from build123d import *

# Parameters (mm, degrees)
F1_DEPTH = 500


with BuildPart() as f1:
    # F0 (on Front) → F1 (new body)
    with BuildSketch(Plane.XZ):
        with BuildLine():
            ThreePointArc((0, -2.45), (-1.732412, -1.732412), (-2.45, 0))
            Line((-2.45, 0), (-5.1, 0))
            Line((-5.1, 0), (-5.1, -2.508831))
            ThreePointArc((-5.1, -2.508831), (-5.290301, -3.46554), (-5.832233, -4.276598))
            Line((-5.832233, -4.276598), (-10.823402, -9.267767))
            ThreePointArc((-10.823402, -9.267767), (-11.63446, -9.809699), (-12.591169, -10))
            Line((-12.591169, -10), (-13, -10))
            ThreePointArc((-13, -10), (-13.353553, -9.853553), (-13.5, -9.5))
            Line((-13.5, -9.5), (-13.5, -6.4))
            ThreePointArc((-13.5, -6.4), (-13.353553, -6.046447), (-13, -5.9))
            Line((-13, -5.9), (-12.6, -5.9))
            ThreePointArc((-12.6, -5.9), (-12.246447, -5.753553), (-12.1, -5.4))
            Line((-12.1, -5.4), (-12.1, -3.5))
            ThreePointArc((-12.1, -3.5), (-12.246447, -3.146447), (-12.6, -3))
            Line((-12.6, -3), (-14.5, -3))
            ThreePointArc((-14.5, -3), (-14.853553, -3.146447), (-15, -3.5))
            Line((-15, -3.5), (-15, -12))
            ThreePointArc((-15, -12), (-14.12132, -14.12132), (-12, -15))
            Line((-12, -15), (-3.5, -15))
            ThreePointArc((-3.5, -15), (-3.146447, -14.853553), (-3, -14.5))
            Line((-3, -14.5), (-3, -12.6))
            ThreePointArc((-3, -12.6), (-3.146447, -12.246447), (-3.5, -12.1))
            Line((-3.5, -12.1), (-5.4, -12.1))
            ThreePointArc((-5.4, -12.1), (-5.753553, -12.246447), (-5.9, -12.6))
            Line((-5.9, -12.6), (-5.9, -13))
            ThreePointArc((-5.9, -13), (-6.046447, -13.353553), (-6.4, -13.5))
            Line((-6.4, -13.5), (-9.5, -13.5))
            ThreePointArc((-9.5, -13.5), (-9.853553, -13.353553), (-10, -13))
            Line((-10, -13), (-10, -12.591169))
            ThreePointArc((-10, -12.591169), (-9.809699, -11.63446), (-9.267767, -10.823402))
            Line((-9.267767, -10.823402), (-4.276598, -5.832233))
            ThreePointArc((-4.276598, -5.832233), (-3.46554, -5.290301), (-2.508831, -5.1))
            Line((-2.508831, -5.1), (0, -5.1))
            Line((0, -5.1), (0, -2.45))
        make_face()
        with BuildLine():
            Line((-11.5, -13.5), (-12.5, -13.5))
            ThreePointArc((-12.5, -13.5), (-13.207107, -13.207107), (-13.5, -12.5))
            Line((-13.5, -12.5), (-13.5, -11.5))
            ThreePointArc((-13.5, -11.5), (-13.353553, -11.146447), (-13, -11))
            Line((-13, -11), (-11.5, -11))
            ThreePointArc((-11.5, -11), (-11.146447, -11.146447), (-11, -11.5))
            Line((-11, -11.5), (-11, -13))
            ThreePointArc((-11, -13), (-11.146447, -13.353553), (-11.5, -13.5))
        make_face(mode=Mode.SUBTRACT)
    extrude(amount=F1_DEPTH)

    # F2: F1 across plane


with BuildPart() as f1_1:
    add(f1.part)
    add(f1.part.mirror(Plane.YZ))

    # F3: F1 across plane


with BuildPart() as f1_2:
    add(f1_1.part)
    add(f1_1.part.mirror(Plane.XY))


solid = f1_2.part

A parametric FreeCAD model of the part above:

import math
import FreeCAD as App
import Part
import Sketcher
from FreeCAD import Vector
Q = App.Units.Quantity

doc = App.newDocument("Part")
params = doc.addObject("Spreadsheet::Sheet", "Params")
for row, (alias, value) in enumerate([
    ("sketch1_radius", "3.000001 mm"),
    ("sketch1_radius2", "0.999999 mm"),
    ("sketch1_radius3", "0.500001 mm"),
    ("sketch1_width", "1 mm"),
    ("sketch1_radius4", "2.449999 mm"),
    ("pad1_length", "500 mm"),
], start=1):
    params.set(f"A{row}", alias)
    params.set(f"B{row}", "=" + value)
    params.setAlias(f"B{row}", alias)

body = doc.addObject("PartDesign::Body", "Body")

# Sketch on XZ plane
sketch1 = body.newObject("Sketcher::SketchObject", "Sketch")
sketch1.AttachmentSupport = (doc.getObject("XZ_Plane"), [""])
sketch1.MapMode = "FlatFace"
sketch1.addGeometry(Part.ArcOfCircle(Part.Circle(Vector(0, 0, 0), Vector(0, 0, 1), 2.45), math.radians(180), math.radians(270)), False)
sketch1.addGeometry(Part.LineSegment(Vector(-2.45, 0, 0), Vector(-5.1, 0, 0)), False)
sketch1.addGeometry(Part.LineSegment(Vector(-5.1, 0, 0), Vector(-5.1, -2.51, 0)), False)
sketch1.addGeometry(Part.ArcOfCircle(Part.Circle(Vector(-7.6, -2.51, 0), Vector(0, 0, 1), 2.5), math.radians(-45), math.radians(0)), False)
sketch1.addGeometry(Part.LineSegment(Vector(-5.83, -4.28, 0), Vector(-10.82, -9.27, 0)), False)
sketch1.addGeometry(Part.ArcOfCircle(Part.Circle(Vector(-12.59, -7.5, 0), Vector(0, 0, 1), 2.5), math.radians(-90), math.radians(-45)), False)
sketch1.addGeometry(Part.LineSegment(Vector(-12.59, -10, 0), Vector(-13, -10, 0)), False)
sketch1.addGeometry(Part.ArcOfCircle(Part.Circle(Vector(-13, -9.5, 0), Vector(0, 0, 1), 0.5), math.radians(-180), math.radians(-90)), False)
sketch1.addGeometry(Part.LineSegment(Vector(-13.5, -9.5, 0), Vector(-13.5, -6.4, 0)), False)
sketch1.addGeometry(Part.ArcOfCircle(Part.Circle(Vector(-13, -6.4, 0), Vector(0, 0, 1), 0.5), math.radians(90), math.radians(180)), False)
sketch1.addGeometry(Part.LineSegment(Vector(-13, -5.9, 0), Vector(-12.6, -5.9, 0)), False)
sketch1.addGeometry(Part.ArcOfCircle(Part.Circle(Vector(-12.6, -5.4, 0), Vector(0, 0, 1), 0.5), math.radians(-90), math.radians(0)), False)
sketch1.addGeometry(Part.LineSegment(Vector(-12.1, -5.4, 0), Vector(-12.1, -3.5, 0)), False)
sketch1.addGeometry(Part.ArcOfCircle(Part.Circle(Vector(-12.6, -3.5, 0), Vector(0, 0, 1), 0.5), math.radians(0), math.radians(90)), False)
sketch1.addGeometry(Part.LineSegment(Vector(-12.6, -3, 0), Vector(-14.5, -3, 0)), False)
sketch1.addGeometry(Part.ArcOfCircle(Part.Circle(Vector(-14.5, -3.5, 0), Vector(0, 0, 1), 0.5), math.radians(90), math.radians(180)), False)
sketch1.addGeometry(Part.LineSegment(Vector(-15, -3.5, 0), Vector(-15, -12, 0)), False)
sketch1.addGeometry(Part.ArcOfCircle(Part.Circle(Vector(-12, -12, 0), Vector(0, 0, 1), 3), math.radians(-180), math.radians(-90)), False)
sketch1.addGeometry(Part.LineSegment(Vector(-12, -15, 0), Vector(-3.5, -15, 0)), False)
sketch1.addGeometry(Part.ArcOfCircle(Part.Circle(Vector(-3.5, -14.5, 0), Vector(0, 0, 1), 0.5), math.radians(-90), math.radians(0)), False)
sketch1.addGeometry(Part.LineSegment(Vector(-3, -14.5, 0), Vector(-3, -12.6, 0)), False)
sketch1.addGeometry(Part.ArcOfCircle(Part.Circle(Vector(-3.5, -12.6, 0), Vector(0, 0, 1), 0.5), math.radians(0), math.radians(90)), False)
sketch1.addGeometry(Part.LineSegment(Vector(-3.5, -12.1, 0), Vector(-5.4, -12.1, 0)), False)
sketch1.addGeometry(Part.ArcOfCircle(Part.Circle(Vector(-5.4, -12.6, 0), Vector(0, 0, 1), 0.5), math.radians(90), math.radians(180)), False)
sketch1.addGeometry(Part.LineSegment(Vector(-5.9, -12.6, 0), Vector(-5.9, -13, 0)), False)
sketch1.addGeometry(Part.ArcOfCircle(Part.Circle(Vector(-6.4, -13, 0), Vector(0, 0, 1), 0.5), math.radians(-90), math.radians(0)), False)
sketch1.addGeometry(Part.LineSegment(Vector(-6.4, -13.5, 0), Vector(-9.5, -13.5, 0)), False)
sketch1.addGeometry(Part.ArcOfCircle(Part.Circle(Vector(-9.5, -13, 0), Vector(0, 0, 1), 0.5), math.radians(-180), math.radians(-90)), False)
sketch1.addGeometry(Part.LineSegment(Vector(-10, -13, 0), Vector(-10, -12.59, 0)), False)
sketch1.addGeometry(Part.ArcOfCircle(Part.Circle(Vector(-7.5, -12.59, 0), Vector(0, 0, 1), 2.5), math.radians(135), math.radians(180)), False)
sketch1.addGeometry(Part.LineSegment(Vector(-9.27, -10.82, 0), Vector(-4.28, -5.83, 0)), False)
sketch1.addGeometry(Part.ArcOfCircle(Part.Circle(Vector(-2.51, -7.6, 0), Vector(0, 0, 1), 2.5), math.radians(90), math.radians(135)), False)
sketch1.addGeometry(Part.LineSegment(Vector(-2.51, -5.1, 0), Vector(0, -5.1, 0)), False)
sketch1.addGeometry(Part.LineSegment(Vector(0, -5.1, 0), Vector(0, -2.45, 0)), False)
sketch1.addGeometry(Part.ArcOfCircle(Part.Circle(Vector(-11.5, -13, 0), Vector(0, 0, 1), 0.5), math.radians(-90), math.radians(0)), False)
sketch1.addGeometry(Part.LineSegment(Vector(-11.5, -13.5, 0), Vector(-12.5, -13.5, 0)), False)
sketch1.addGeometry(Part.ArcOfCircle(Part.Circle(Vector(-12.5, -12.5, 0), Vector(0, 0, 1), 1), math.radians(180), math.radians(270)), False)
sketch1.addGeometry(Part.LineSegment(Vector(-13.5, -12.5, 0), Vector(-13.5, -11.5, 0)), False)
sketch1.addGeometry(Part.ArcOfCircle(Part.Circle(Vector(-13, -11.5, 0), Vector(0, 0, 1), 0.5), math.radians(90), math.radians(180)), False)
sketch1.addGeometry(Part.LineSegment(Vector(-13, -11, 0), Vector(-11.5, -11, 0)), False)
sketch1.addGeometry(Part.ArcOfCircle(Part.Circle(Vector(-11.5, -11.5, 0), Vector(0, 0, 1), 0.5), math.radians(0), math.radians(90)), False)
sketch1.addGeometry(Part.LineSegment(Vector(-11, -11.5, 0), Vector(-11, -13, 0)), False)
sketch1.addConstraint(Sketcher.Constraint("Coincident", 0, 1, 1, 1))
sketch1.addConstraint(Sketcher.Constraint("Coincident", 1, 2, 2, 1))
sketch1.addConstraint(Sketcher.Constraint("Tangent", 2, 2, 3, 2))
sketch1.addConstraint(Sketcher.Constraint("Tangent", 3, 1, 4, 1))
sketch1.addConstraint(Sketcher.Constraint("Tangent", 4, 2, 5, 2))
sketch1.addConstraint(Sketcher.Constraint("Tangent", 5, 1, 6, 1))
sketch1.addConstraint(Sketcher.Constraint("Coincident", 6, 2, 7, 2))
sketch1.addConstraint(Sketcher.Constraint("Coincident", 7, 1, 8, 1))
sketch1.addConstraint(Sketcher.Constraint("Coincident", 8, 2, 9, 2))
sketch1.addConstraint(Sketcher.Constraint("Coincident", 9, 1, 10, 1))
sketch1.addConstraint(Sketcher.Constraint("Coincident", 10, 2, 11, 1))
sketch1.addConstraint(Sketcher.Constraint("Coincident", 11, 2, 12, 1))
sketch1.addConstraint(Sketcher.Constraint("Coincident", 12, 2, 13, 1))
sketch1.addConstraint(Sketcher.Constraint("Coincident", 13, 2, 14, 1))
sketch1.addConstraint(Sketcher.Constraint("Coincident", 14, 2, 15, 1))
sketch1.addConstraint(Sketcher.Constraint("Coincident", 15, 2, 16, 1))
sketch1.addConstraint(Sketcher.Constraint("Tangent", 16, 2, 17, 1))
sketch1.addConstraint(Sketcher.Constraint("Tangent", 17, 2, 18, 1))
sketch1.addConstraint(Sketcher.Constraint("Coincident", 18, 2, 19, 1))
sketch1.addConstraint(Sketcher.Constraint("Coincident", 19, 2, 20, 1))
sketch1.addConstraint(Sketcher.Constraint("Coincident", 20, 2, 21, 1))
sketch1.addConstraint(Sketcher.Constraint("Coincident", 21, 2, 22, 1))
sketch1.addConstraint(Sketcher.Constraint("Coincident", 22, 2, 23, 1))
sketch1.addConstraint(Sketcher.Constraint("Coincident", 23, 2, 24, 1))
sketch1.addConstraint(Sketcher.Constraint("Coincident", 24, 2, 25, 2))
sketch1.addConstraint(Sketcher.Constraint("Coincident", 25, 1, 26, 1))
sketch1.addConstraint(Sketcher.Constraint("Coincident", 26, 2, 27, 2))
sketch1.addConstraint(Sketcher.Constraint("Coincident", 27, 1, 28, 1))
sketch1.addConstraint(Sketcher.Constraint("Tangent", 28, 2, 29, 2))
sketch1.addConstraint(Sketcher.Constraint("Tangent", 29, 1, 30, 1))
sketch1.addConstraint(Sketcher.Constraint("Tangent", 30, 2, 31, 2))
sketch1.addConstraint(Sketcher.Constraint("Tangent", 31, 1, 32, 1))
sketch1.addConstraint(Sketcher.Constraint("Coincident", 32, 2, 33, 1))
sketch1.addConstraint(Sketcher.Constraint("Coincident", 33, 2, 0, 2))
sketch1.addConstraint(Sketcher.Constraint("Coincident", 34, 1, 35, 1))
sketch1.addConstraint(Sketcher.Constraint("Tangent", 35, 2, 36, 2))
sketch1.addConstraint(Sketcher.Constraint("Tangent", 36, 1, 37, 1))
sketch1.addConstraint(Sketcher.Constraint("Coincident", 37, 2, 38, 2))
sketch1.addConstraint(Sketcher.Constraint("Coincident", 38, 1, 39, 1))
sketch1.addConstraint(Sketcher.Constraint("Coincident", 39, 2, 40, 2))
sketch1.addConstraint(Sketcher.Constraint("Coincident", 40, 1, 41, 1))
sketch1.addConstraint(Sketcher.Constraint("Coincident", 41, 2, 34, 2))
sketch1.addConstraint(Sketcher.Constraint("Horizontal", 1))
sketch1.addConstraint(Sketcher.Constraint("Vertical", 2))
sketch1.addConstraint(Sketcher.Constraint("Horizontal", 6))
sketch1.addConstraint(Sketcher.Constraint("Vertical", 8))
sketch1.addConstraint(Sketcher.Constraint("Horizontal", 10))
sketch1.addConstraint(Sketcher.Constraint("Vertical", 12))
sketch1.addConstraint(Sketcher.Constraint("Horizontal", 14))
sketch1.addConstraint(Sketcher.Constraint("Vertical", 16))
sketch1.addConstraint(Sketcher.Constraint("Horizontal", 18))
sketch1.addConstraint(Sketcher.Constraint("Vertical", 20))
sketch1.addConstraint(Sketcher.Constraint("Horizontal", 22))
sketch1.addConstraint(Sketcher.Constraint("Vertical", 24))
sketch1.addConstraint(Sketcher.Constraint("Horizontal", 26))
sketch1.addConstraint(Sketcher.Constraint("Vertical", 28))
sketch1.addConstraint(Sketcher.Constraint("Horizontal", 32))
sketch1.addConstraint(Sketcher.Constraint("Vertical", 33))
sketch1.addConstraint(Sketcher.Constraint("Horizontal", 35))
sketch1.addConstraint(Sketcher.Constraint("Vertical", 37))
sketch1.addConstraint(Sketcher.Constraint("Horizontal", 39))
sketch1.addConstraint(Sketcher.Constraint("Vertical", 41))
sketch1.addConstraint(Sketcher.Constraint("Coincident", 0, 3, -1, 1))
sketch1.addConstraint(Sketcher.Constraint("Equal", 3, 5))
sketch1.addConstraint(Sketcher.Constraint("Equal", 7, 9))
sketch1.addConstraint(Sketcher.Constraint("Equal", 9, 11))
sketch1.addConstraint(Sketcher.Constraint("Equal", 11, 13))
sketch1.addConstraint(Sketcher.Constraint("Equal", 13, 15))
sketch1.addConstraint(Sketcher.Constraint("Equal", 15, 19))
sketch1.addConstraint(Sketcher.Constraint("Equal", 19, 21))
sketch1.addConstraint(Sketcher.Constraint("Equal", 21, 23))
sketch1.addConstraint(Sketcher.Constraint("Equal", 23, 25))
sketch1.addConstraint(Sketcher.Constraint("Equal", 25, 27))
sketch1.addConstraint(Sketcher.Constraint("Equal", 5, 29))
sketch1.addConstraint(Sketcher.Constraint("Equal", 29, 31))
sketch1.addConstraint(Sketcher.Constraint("Equal", 27, 34))
sketch1.addConstraint(Sketcher.Constraint("Equal", 34, 38))
sketch1.addConstraint(Sketcher.Constraint("Equal", 38, 40))
sketch1.addConstraint(Sketcher.Constraint("PointOnObject", 0, 1, -1))
sketch1.addConstraint(Sketcher.Constraint("PointOnObject", 32, 2, -2))
sketch1.addConstraint(Sketcher.Constraint("Parallel", 4, 30))
sketch1.addConstraint(Sketcher.Constraint("Horizontal", 27, 3, 34, 3))
sketch1.addConstraint(Sketcher.Constraint("Horizontal", 9, 3, 8, 2))
sketch1.addConstraint(Sketcher.Constraint("Horizontal", 15, 3, 12, 2))
sketch1.addConstraint(Sketcher.Constraint("Horizontal", 12, 2, 15, 2))
sketch1.addConstraint(Sketcher.Constraint("Horizontal", 23, 3, 20, 2))
sketch1.addConstraint(Sketcher.Constraint("Horizontal", 20, 2, 23, 2))
sketch1.addConstraint(Sketcher.Constraint("Horizontal", 34, 3, 24, 2))
sketch1.addConstraint(Sketcher.Constraint("Horizontal", 24, 2, 27, 1))
sketch1.addConstraint(Sketcher.Constraint("Horizontal", 40, 3, 37, 2))
sketch1.addConstraint(Sketcher.Constraint("Horizontal", 37, 2, 40, 1))
sketch1.addConstraint(Sketcher.Constraint("Horizontal", 27, 1, 41, 2))
sketch1.addConstraint(Sketcher.Constraint("Vertical", 9, 3, 38, 3))
sketch1.addConstraint(Sketcher.Constraint("Vertical", 38, 3, 6, 2))
sketch1.addConstraint(Sketcher.Constraint("Vertical", 6, 2, 9, 1))
sketch1.addConstraint(Sketcher.Constraint("Vertical", 13, 3, 10, 2))
sketch1.addConstraint(Sketcher.Constraint("Vertical", 10, 2, 13, 2))
sketch1.addConstraint(Sketcher.Constraint("Vertical", 15, 3, 14, 2))
sketch1.addConstraint(Sketcher.Constraint("Vertical", 21, 3, 18, 2))
sketch1.addConstraint(Sketcher.Constraint("Vertical", 18, 2, 21, 2))
sketch1.addConstraint(Sketcher.Constraint("Vertical", 23, 3, 22, 2))
sketch1.addConstraint(Sketcher.Constraint("Vertical", 27, 3, 26, 2))
sketch1.addConstraint(Sketcher.Constraint("Vertical", 40, 3, 34, 1))
sketch1.addConstraint(Sketcher.Constraint("Vertical", 9, 1, 38, 1))
sketch1.addConstraint(Sketcher.Constraint("Vertical", 34, 1, 39, 2))
sketch1.addConstraint(Sketcher.Constraint("Equal", 14, 22))
sketch1.addConstraint(Sketcher.Constraint("Equal", 32, 2))
sketch1.addConstraint(Sketcher.Constraint("Equal", 26, 8))
sketch1.addConstraint(Sketcher.Constraint("Equal", 22, 12))
sketch1.addConstraint(Sketcher.Constraint("Equal", 18, 16))
sketch1.addConstraint(Sketcher.Constraint("Equal", 12, 20))
sketch1.addConstraint(Sketcher.Constraint("Equal", 10, 24))
sketch1.addConstraint(Sketcher.Constraint("Equal", 6, 28))
sketch1.addConstraint(Sketcher.Constraint("Equal", 1, 33))
sketch1.addConstraint(Sketcher.Constraint("Equal", 35, 37))
sketch1.addConstraint(Sketcher.Constraint("Equal", 4, 30))
sketch1.addConstraint(Sketcher.Constraint("Radius", 17, 3.000001))
sketch1.addConstraint(Sketcher.Constraint("Radius", 36, 0.999999))
sketch1.addConstraint(Sketcher.Constraint("Radius", 7, 0.500001))
sketch1.addConstraint(Sketcher.Constraint("DistanceX", 35, 2, 35, 1, 1.0))
sketch1.addConstraint(Sketcher.Constraint("Angle", 4, Q("-135 deg")))
sketch1.addConstraint(Sketcher.Constraint("Radius", 0, 2.449999))
sketch1.addConstraint(Sketcher.Constraint("DistanceX", 10, 1, 10, 2, 0.4))
sketch1.addConstraint(Sketcher.Constraint("DistanceX", 14, 2, 14, 1, 1.9))
sketch1.addConstraint(Sketcher.Constraint("DistanceX", 18, 1, 18, 2, 8.5))
sketch1.addConstraint(Sketcher.Constraint("DistanceX", 26, 2, 26, 1, 3.1))
sketch1.addConstraint(Sketcher.Constraint("DistanceX", 7, 3, -1, 1, 12.999999))
sketch1.addConstraint(Sketcher.Constraint("DistanceY", 17, 3, -1, 1, 11.999999))
sketch1.addConstraint(Sketcher.Constraint("DistanceY", 5, 1, -1, 1, 10.0))
sketch1.addConstraint(Sketcher.Constraint("DistanceX", 1, 2, 1, 1, 2.65))
sketch1.addConstraint(Sketcher.Constraint("DistanceY", 9, 3, -1, 1, 6.400001))
sketch1.addConstraint(Sketcher.Constraint("Radius", 3, 2.499997))
sketch1.addConstraint(Sketcher.Constraint("DistanceX", 6, 2, 6, 1, 0.408831))
sketch1.setExpression("Constraints[116]", "Params.sketch1_radius")
sketch1.setExpression("Constraints[117]", "Params.sketch1_radius2")
sketch1.setExpression("Constraints[118]", "Params.sketch1_radius3")
sketch1.setExpression("Constraints[119]", "Params.sketch1_width")
sketch1.setExpression("Constraints[121]", "Params.sketch1_radius4")
pad1 = body.newObject("PartDesign::Pad", "Pad")
pad1.Profile = sketch1
pad1.setExpression("Length", "Params.pad1_length")
body2 = doc.addObject("PartDesign::Body", "Body001")
doc.recompute()

body2.BaseFeature = body
doc.recompute()

mirroring = doc.addObject("Part::Mirroring", "Mirroring")
mirroring.Source = body
mirroring.Base = Vector(0, 0, 0)
mirroring.Normal = Vector(1, 0, 0)
body3 = doc.addObject("PartDesign::Body", "Body002")
body3.BaseFeature = mirroring
boolean = body2.newObject("PartDesign::Boolean", "Boolean")
boolean.Type = "Fuse"
boolean.addObjects([body3])
doc.recompute()
body4 = doc.addObject("PartDesign::Body", "Body003")
doc.recompute()

body4.BaseFeature = body2
doc.recompute()

mirroring2 = doc.addObject("Part::Mirroring", "Mirroring001")
mirroring2.Source = body2
mirroring2.Base = Vector(0, 0, 0)
mirroring2.Normal = Vector(0, 0, 1)
body5 = doc.addObject("PartDesign::Body", "Body004")
body5.BaseFeature = mirroring2
boolean2 = body4.newObject("PartDesign::Boolean", "Boolean001")
boolean2.Type = "Fuse"
boolean2.addObjects([body5])
doc.recompute()
mirroring.Visibility = False
mirroring2.Visibility = False

doc.recompute()
